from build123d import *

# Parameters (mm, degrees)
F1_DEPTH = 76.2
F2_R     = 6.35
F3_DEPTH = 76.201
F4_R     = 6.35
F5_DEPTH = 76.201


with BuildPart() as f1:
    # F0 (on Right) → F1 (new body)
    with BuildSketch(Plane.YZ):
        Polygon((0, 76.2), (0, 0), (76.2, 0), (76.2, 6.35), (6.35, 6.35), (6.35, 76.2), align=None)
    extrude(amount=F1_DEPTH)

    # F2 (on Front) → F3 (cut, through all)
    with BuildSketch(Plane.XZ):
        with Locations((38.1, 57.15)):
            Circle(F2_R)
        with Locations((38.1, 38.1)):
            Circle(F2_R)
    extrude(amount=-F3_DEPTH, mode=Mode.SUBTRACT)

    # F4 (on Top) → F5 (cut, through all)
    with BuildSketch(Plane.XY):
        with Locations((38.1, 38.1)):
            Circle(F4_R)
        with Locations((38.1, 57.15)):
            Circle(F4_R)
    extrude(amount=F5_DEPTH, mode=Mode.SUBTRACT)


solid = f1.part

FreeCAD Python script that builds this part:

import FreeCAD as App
import Part
import Sketcher
from FreeCAD import Vector
Q = App.Units.Quantity


def add_polygon(sketch, points):
    """Adds a closed chain of lines whose ends are joined by coincident constraints."""
    first, n = sketch.GeometryCount, len(points)
    for a, b in zip(points, points[1:] + points[:1]):
        sketch.addGeometry(Part.LineSegment(App.Vector(*a, 0), App.Vector(*b, 0)), False)
    for i in range(n):
        sketch.addConstraint(Sketcher.Constraint("Coincident", first + i, 2, first + (i + 1) % n, 1))

doc = App.newDocument("Part")
body = doc.addObject("PartDesign::Body", "Body")

sketch1 = doc.addObject("Sketcher::SketchObject", "Sketch")
body.addObject(sketch1)
sketch1.AttachmentSupport = (doc.YZ_Plane, [""])
sketch1.MapMode = "FlatFace"
add_polygon(sketch1, [(0, 76.2), (0, 0), (76.2, 0), (76.2, 6.35), (6.35, 6.35), (6.35, 76.2)])
sketch1.addConstraint([
    Sketcher.Constraint("Vertical", 0),
    Sketcher.Constraint("Horizontal", 1),
    Sketcher.Constraint("Vertical", 2),
    Sketcher.Constraint("Horizontal", 3),
    Sketcher.Constraint("Vertical", 4),
    Sketcher.Constraint("Horizontal", 5),
    Sketcher.Constraint("Coincident", 0, 2, -1, 1),
    Sketcher.Constraint("Equal", 1, 0),
    Sketcher.Constraint("Equal", 5, 2),
    Sketcher.Constraint("DistanceX", 1, 1, 1, 2, Q("3 in")),
    Sketcher.Constraint("DistanceX", 3, 2, 3, 1, Q("2.75 in")),
])
pad1 = doc.addObject("PartDesign::Pad", "Pad")
body.addObject(pad1)
pad1.Profile = sketch1
pad1.Length = Q("3 in")

sketch2 = doc.addObject("Sketcher::SketchObject", "Sketch001")
body.addObject(sketch2)
sketch2.AttachmentSupport = (doc.XZ_Plane, [""])
sketch2.MapMode = "FlatFace"
sketch2.addGeometry([
    Part.Circle(Vector(38.1, 57.15, 0), Vector(0, 0, 1), 6.35),
    Part.Circle(Vector(38.1, 38.1, 0), Vector(0, 0, 1), 6.35),
], False)
sketch2.addConstraint([
    Sketcher.Constraint("Equal", 0, 1),
    Sketcher.Constraint("Vertical", 0, 3, 1, 3),
    Sketcher.Constraint("Diameter", 0, Q("0.5 in")),
    Sketcher.Constraint("DistanceX", -1, 1, 0, 3, Q("1.5 in")),
    Sketcher.Constraint("DistanceY", -1, 1, 1, 3, Q("1.5 in")),
    Sketcher.Constraint("DistanceY", -1, 1, 0, 3, Q("2.25 in")),
])
pocket1 = doc.addObject("PartDesign::Pocket", "Pocket")
body.addObject(pocket1)
pocket1.Profile = sketch2
pocket1.Type = "ThroughAll"

sketch3 = doc.addObject("Sketcher::SketchObject", "Sketch002")
body.addObject(sketch3)
sketch3.AttachmentSupport = (doc.XY_Plane, [""])
sketch3.MapMode = "FlatFace"
sketch3.addGeometry([
    Part.Circle(Vector(38.1, 38.1, 0), Vector(0, 0, 1), 6.35),
    Part.Circle(Vector(38.1, 57.15, 0), Vector(0, 0, 1), 6.35),
], False)
sketch3.addConstraint([
    Sketcher.Constraint("Equal", 0, 1),
    Sketcher.Constraint("Vertical", 0, 3, 1, 3),
    Sketcher.Constraint("Diameter", 0, Q("0.5 in")),
    Sketcher.Constraint("DistanceX", -1, 1, 0, 3, Q("1.5 in")),
    Sketcher.Constraint("DistanceY", -1, 1, 0, 3, Q("1.5 in")),
    Sketcher.Constraint("DistanceY", -1, 1, 1, 3, Q("2.25 in")),
])
pocket2 = doc.addObject("PartDesign::Pocket", "Pocket001")
body.addObject(pocket2)
pocket2.Profile = sketch3
pocket2.Type = "ThroughAll"
pocket2.Reversed = True

doc.recompute()
